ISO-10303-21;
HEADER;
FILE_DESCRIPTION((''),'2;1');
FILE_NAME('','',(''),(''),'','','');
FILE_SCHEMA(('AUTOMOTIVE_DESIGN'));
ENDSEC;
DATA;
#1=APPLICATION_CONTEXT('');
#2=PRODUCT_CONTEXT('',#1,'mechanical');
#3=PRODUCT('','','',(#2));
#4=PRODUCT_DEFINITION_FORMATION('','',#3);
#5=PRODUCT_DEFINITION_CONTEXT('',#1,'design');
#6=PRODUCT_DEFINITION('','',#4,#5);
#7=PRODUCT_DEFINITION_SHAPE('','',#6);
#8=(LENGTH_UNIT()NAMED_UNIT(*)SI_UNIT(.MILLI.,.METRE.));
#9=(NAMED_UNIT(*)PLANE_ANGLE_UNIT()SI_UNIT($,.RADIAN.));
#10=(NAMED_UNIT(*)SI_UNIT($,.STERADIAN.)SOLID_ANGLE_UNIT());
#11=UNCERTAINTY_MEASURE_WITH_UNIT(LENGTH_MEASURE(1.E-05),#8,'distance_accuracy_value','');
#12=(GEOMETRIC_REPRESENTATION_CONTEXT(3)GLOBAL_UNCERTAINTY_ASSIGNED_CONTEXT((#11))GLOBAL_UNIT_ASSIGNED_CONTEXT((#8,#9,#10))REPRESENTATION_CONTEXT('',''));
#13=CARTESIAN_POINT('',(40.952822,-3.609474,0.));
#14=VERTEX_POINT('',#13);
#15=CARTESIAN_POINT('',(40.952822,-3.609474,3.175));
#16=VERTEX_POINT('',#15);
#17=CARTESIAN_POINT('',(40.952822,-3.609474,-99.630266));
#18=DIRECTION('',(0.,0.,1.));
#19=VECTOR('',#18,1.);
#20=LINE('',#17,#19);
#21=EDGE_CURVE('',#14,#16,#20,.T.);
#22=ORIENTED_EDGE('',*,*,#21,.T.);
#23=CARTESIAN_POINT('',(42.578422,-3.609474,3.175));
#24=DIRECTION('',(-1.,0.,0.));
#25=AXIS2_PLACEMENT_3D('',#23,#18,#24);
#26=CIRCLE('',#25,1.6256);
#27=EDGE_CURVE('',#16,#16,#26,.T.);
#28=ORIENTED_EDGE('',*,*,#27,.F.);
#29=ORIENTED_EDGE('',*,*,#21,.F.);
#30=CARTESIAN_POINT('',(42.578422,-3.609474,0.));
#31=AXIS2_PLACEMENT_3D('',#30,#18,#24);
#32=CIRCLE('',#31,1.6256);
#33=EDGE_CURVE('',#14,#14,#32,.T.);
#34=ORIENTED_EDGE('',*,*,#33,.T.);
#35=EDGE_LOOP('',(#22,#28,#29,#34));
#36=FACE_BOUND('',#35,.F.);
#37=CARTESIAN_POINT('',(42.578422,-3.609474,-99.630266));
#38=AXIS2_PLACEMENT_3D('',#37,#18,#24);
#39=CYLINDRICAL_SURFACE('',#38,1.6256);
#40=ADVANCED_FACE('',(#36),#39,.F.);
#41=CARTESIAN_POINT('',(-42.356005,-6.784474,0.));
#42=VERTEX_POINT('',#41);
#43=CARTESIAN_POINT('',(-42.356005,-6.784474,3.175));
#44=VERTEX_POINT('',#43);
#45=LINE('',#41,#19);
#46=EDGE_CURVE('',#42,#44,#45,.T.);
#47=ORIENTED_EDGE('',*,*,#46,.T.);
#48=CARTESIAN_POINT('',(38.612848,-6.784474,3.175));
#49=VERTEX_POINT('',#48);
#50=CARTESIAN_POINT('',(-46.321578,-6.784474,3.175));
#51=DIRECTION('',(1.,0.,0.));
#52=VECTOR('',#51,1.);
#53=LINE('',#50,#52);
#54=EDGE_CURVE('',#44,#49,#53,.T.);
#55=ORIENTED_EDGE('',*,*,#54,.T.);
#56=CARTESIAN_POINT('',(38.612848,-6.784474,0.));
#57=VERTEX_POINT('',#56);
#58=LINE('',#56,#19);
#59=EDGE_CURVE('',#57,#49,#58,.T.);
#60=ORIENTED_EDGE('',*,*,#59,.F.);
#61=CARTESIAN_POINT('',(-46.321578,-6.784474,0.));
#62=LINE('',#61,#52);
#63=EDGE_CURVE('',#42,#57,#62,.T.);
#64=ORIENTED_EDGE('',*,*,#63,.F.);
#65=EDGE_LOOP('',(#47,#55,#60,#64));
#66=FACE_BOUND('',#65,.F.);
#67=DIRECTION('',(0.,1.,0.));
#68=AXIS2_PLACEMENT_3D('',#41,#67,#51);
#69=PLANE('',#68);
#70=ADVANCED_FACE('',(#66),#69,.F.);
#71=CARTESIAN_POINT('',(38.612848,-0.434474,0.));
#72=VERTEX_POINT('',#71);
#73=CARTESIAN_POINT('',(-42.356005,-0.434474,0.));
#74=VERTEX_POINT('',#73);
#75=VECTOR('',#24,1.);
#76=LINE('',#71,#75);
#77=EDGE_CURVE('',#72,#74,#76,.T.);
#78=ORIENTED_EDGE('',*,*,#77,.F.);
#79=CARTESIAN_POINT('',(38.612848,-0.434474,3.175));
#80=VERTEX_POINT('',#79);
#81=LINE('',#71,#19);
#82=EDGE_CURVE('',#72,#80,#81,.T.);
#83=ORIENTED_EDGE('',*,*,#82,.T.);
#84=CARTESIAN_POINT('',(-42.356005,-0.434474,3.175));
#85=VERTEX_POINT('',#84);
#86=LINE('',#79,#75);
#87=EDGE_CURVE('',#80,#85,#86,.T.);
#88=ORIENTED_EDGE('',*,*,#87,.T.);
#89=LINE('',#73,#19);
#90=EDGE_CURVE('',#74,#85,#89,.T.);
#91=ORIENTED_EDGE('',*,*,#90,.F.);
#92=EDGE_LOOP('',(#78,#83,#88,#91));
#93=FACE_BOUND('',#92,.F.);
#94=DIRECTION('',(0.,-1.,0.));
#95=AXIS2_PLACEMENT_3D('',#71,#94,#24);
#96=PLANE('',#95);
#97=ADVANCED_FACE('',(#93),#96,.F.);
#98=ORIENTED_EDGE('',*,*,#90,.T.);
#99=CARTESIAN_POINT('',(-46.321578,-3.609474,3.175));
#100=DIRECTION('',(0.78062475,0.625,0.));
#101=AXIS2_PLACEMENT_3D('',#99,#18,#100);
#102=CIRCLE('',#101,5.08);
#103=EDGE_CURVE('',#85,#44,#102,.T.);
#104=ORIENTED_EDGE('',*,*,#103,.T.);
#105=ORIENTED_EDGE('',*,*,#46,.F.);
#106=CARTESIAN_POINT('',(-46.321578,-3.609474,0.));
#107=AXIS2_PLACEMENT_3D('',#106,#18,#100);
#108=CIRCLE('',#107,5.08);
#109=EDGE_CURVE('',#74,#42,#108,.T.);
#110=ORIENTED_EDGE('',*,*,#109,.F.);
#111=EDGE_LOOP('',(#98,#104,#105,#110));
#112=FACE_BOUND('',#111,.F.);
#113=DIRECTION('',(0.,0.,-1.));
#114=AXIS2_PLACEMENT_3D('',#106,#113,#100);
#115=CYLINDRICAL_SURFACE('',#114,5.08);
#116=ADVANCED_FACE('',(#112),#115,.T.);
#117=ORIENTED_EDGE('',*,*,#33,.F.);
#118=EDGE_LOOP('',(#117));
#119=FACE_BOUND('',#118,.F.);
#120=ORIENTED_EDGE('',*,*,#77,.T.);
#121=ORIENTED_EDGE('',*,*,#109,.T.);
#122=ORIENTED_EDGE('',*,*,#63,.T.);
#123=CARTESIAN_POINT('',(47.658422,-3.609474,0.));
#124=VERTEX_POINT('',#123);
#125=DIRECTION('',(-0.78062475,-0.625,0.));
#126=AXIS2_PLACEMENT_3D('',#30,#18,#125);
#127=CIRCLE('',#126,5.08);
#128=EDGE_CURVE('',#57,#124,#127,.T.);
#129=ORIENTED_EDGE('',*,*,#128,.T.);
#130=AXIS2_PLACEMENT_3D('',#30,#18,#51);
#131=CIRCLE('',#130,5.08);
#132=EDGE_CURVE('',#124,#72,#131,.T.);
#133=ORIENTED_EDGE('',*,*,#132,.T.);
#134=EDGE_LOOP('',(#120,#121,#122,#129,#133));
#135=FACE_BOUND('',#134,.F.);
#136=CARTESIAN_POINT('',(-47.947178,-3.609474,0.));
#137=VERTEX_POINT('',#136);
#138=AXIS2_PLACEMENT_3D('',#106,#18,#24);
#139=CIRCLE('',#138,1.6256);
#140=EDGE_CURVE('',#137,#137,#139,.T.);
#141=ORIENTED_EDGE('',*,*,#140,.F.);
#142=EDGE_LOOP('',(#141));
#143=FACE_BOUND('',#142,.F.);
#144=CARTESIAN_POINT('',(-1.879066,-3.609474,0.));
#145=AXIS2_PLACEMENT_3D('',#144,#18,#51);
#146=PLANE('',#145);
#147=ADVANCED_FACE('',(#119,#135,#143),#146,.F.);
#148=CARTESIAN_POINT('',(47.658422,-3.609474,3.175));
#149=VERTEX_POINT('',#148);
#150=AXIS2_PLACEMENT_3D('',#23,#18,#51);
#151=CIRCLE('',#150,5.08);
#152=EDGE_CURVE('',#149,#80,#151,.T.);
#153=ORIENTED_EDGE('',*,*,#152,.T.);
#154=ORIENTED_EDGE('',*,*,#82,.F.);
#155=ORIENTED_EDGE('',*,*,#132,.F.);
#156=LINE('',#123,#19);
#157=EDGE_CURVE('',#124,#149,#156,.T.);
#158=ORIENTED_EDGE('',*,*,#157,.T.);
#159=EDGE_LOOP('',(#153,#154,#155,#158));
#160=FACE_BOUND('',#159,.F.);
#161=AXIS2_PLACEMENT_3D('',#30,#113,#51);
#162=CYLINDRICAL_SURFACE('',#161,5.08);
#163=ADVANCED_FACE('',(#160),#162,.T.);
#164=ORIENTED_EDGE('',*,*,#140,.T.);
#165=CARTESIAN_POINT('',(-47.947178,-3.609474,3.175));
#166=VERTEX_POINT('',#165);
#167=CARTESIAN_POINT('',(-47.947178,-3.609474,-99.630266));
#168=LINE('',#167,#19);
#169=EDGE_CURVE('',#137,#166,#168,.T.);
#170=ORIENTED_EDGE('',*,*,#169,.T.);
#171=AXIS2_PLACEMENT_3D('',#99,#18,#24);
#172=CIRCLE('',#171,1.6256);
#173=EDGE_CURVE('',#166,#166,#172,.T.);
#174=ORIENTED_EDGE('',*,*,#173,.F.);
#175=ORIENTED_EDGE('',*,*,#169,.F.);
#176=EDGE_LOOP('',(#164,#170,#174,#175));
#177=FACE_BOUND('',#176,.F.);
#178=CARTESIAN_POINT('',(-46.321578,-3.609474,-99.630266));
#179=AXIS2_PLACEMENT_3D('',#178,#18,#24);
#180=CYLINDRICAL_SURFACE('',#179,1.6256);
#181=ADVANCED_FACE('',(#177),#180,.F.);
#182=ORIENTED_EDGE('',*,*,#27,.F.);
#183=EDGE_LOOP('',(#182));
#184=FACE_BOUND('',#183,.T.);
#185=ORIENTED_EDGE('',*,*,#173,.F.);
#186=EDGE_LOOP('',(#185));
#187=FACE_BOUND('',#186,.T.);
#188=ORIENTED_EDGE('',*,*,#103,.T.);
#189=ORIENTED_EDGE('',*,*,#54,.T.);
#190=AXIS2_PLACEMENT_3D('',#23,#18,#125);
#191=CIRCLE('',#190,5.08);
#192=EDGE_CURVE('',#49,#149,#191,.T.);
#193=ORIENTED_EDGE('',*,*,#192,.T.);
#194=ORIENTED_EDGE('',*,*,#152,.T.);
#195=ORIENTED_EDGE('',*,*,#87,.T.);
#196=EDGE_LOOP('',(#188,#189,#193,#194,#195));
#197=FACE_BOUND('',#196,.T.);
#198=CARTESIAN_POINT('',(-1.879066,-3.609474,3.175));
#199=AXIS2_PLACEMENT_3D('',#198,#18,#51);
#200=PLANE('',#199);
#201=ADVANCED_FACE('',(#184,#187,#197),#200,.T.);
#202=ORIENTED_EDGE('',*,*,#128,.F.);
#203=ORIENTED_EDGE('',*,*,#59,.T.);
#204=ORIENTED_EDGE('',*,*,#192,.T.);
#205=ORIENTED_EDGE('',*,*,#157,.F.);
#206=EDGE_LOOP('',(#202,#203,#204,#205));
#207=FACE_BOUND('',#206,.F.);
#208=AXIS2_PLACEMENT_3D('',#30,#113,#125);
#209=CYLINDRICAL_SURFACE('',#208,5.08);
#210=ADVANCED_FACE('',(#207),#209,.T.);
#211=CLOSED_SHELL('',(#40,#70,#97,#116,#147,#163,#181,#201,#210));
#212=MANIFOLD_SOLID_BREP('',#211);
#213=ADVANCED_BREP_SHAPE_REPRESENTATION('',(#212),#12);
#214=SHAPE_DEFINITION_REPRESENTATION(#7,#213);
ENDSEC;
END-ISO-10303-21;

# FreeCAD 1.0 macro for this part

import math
import FreeCAD as App
import Part
import Sketcher
from FreeCAD import Vector
Q = App.Units.Quantity

doc = App.newDocument("Part")
body = doc.addObject("PartDesign::Body", "Body")

sketch1 = doc.addObject("Sketcher::SketchObject", "Sketch")
body.addObject(sketch1)
sketch1.AttachmentSupport = (doc.XY_Plane, [""])
sketch1.MapMode = "FlatFace"
sketch1.addGeometry(Part.LineSegment(Vector(38.612848, -0.434474, 0), Vector(-42.356005, -0.434474, 0)), False)
sketch1.addGeometry(Part.ArcOfCircle(Part.Circle(Vector(-46.321578, -3.609474, 0), Vector(0, 0, 1), 5.08), math.radians(38.682187), math.radians(321.317813)), False)
sketch1.addGeometry(Part.LineSegment(Vector(-42.356005, -6.784474, 0), Vector(38.612848, -6.784474, 0)), False)
sketch1.addGeometry(Part.ArcOfCircle(Part.Circle(Vector(42.578422, -3.609474, 0), Vector(0, 0, 1), 5.08), math.radians(-141.317813), math.radians(0)), False)
sketch1.addGeometry(Part.ArcOfCircle(Part.Circle(Vector(42.578422, -3.609474, 0), Vector(0, 0, 1), 5.08), math.radians(0), math.radians(141.317813)), False)
sketch1.addConstraint(Sketcher.Constraint("Coincident", 0, 2, 1, 1))
sketch1.addConstraint(Sketcher.Constraint("Coincident", 1, 2, 2, 1))
sketch1.addConstraint(Sketcher.Constraint("Coincident", 2, 2, 3, 1))
sketch1.addConstraint(Sketcher.Constraint("Tangent", 3, 2, 4, 1))
sketch1.addConstraint(Sketcher.Constraint("Coincident", 4, 2, 0, 1))
sketch1.addConstraint(Sketcher.Constraint("Horizontal", 0))
sketch1.addConstraint(Sketcher.Constraint("Horizontal", 2))
sketch1.addConstraint(Sketcher.Constraint("Equal", 1, 3))
sketch1.addConstraint(Sketcher.Constraint("Equal", 3, 4))
sketch1.addConstraint(Sketcher.Constraint("Horizontal", 1, 3, 3, 3))
sketch1.addConstraint(Sketcher.Constraint("Horizontal", 4, 3, 3, 2))
sketch1.addConstraint(Sketcher.Constraint("Vertical", 0, 2, 1, 2))
sketch1.addConstraint(Sketcher.Constraint("Radius", 1, Q("0.2 in")))
sketch1.addConstraint(Sketcher.Constraint("DistanceX", 1, 3, 3, 3, Q("3.5 in")))
sketch1.addConstraint(Sketcher.Constraint("DistanceY", 1, 2, 0, 2, Q("0.25 in")))
sketch1.addConstraint(Sketcher.Constraint("DistanceX", 1, 3, -1, 1, 46.321578))
sketch1.addConstraint(Sketcher.Constraint("DistanceY", 1, 3, -1, 1, 3.609474))
pad1 = doc.addObject("PartDesign::Pad", "Pad")
body.addObject(pad1)
pad1.Profile = sketch1
pad1.Length = Q("0.125 in")

sketch2 = doc.addObject("Sketcher::SketchObject", "Sketch001")
body.addObject(sketch2)
sketch2.AttachmentSupport = (doc.XY_Plane, [""])
sketch2.MapMode = "FlatFace"
sketch2.addGeometry(Part.Circle(Vector(-46.321578, -3.609474, 0), Vector(0, 0, 1), 1.6256), False)
sketch2.addGeometry(Part.Circle(Vector(42.578422, -3.609474, 0), Vector(0, 0, 1), 1.6256), False)
sketch2.addConstraint(Sketcher.Constraint("Equal", 0, 1))
sketch2.addConstraint(Sketcher.Constraint("Horizontal", 0, 3, 1, 3))
sketch2.addConstraint(Sketcher.Constraint("Diameter", 0, Q("0.128 in")))
sketch2.addConstraint(Sketcher.Constraint("DistanceX", 0, 3, 1, 3, Q("3.5 in")))
sketch2.addConstraint(Sketcher.Constraint("DistanceX", 0, 3, -1, 1, 46.321578))
sketch2.addConstraint(Sketcher.Constraint("DistanceY", 0, 3, -1, 1, 3.609474))
doc.recompute()
hole = doc.addObject("PartDesign::Hole", "Hole")
body.addObject(hole)
hole.Profile = sketch2
hole.ThreadType = "None"
hole.Diameter = Q("0.128 in")
hole.DepthType = "ThroughAll"
hole.Reversed = True

doc.recompute()
